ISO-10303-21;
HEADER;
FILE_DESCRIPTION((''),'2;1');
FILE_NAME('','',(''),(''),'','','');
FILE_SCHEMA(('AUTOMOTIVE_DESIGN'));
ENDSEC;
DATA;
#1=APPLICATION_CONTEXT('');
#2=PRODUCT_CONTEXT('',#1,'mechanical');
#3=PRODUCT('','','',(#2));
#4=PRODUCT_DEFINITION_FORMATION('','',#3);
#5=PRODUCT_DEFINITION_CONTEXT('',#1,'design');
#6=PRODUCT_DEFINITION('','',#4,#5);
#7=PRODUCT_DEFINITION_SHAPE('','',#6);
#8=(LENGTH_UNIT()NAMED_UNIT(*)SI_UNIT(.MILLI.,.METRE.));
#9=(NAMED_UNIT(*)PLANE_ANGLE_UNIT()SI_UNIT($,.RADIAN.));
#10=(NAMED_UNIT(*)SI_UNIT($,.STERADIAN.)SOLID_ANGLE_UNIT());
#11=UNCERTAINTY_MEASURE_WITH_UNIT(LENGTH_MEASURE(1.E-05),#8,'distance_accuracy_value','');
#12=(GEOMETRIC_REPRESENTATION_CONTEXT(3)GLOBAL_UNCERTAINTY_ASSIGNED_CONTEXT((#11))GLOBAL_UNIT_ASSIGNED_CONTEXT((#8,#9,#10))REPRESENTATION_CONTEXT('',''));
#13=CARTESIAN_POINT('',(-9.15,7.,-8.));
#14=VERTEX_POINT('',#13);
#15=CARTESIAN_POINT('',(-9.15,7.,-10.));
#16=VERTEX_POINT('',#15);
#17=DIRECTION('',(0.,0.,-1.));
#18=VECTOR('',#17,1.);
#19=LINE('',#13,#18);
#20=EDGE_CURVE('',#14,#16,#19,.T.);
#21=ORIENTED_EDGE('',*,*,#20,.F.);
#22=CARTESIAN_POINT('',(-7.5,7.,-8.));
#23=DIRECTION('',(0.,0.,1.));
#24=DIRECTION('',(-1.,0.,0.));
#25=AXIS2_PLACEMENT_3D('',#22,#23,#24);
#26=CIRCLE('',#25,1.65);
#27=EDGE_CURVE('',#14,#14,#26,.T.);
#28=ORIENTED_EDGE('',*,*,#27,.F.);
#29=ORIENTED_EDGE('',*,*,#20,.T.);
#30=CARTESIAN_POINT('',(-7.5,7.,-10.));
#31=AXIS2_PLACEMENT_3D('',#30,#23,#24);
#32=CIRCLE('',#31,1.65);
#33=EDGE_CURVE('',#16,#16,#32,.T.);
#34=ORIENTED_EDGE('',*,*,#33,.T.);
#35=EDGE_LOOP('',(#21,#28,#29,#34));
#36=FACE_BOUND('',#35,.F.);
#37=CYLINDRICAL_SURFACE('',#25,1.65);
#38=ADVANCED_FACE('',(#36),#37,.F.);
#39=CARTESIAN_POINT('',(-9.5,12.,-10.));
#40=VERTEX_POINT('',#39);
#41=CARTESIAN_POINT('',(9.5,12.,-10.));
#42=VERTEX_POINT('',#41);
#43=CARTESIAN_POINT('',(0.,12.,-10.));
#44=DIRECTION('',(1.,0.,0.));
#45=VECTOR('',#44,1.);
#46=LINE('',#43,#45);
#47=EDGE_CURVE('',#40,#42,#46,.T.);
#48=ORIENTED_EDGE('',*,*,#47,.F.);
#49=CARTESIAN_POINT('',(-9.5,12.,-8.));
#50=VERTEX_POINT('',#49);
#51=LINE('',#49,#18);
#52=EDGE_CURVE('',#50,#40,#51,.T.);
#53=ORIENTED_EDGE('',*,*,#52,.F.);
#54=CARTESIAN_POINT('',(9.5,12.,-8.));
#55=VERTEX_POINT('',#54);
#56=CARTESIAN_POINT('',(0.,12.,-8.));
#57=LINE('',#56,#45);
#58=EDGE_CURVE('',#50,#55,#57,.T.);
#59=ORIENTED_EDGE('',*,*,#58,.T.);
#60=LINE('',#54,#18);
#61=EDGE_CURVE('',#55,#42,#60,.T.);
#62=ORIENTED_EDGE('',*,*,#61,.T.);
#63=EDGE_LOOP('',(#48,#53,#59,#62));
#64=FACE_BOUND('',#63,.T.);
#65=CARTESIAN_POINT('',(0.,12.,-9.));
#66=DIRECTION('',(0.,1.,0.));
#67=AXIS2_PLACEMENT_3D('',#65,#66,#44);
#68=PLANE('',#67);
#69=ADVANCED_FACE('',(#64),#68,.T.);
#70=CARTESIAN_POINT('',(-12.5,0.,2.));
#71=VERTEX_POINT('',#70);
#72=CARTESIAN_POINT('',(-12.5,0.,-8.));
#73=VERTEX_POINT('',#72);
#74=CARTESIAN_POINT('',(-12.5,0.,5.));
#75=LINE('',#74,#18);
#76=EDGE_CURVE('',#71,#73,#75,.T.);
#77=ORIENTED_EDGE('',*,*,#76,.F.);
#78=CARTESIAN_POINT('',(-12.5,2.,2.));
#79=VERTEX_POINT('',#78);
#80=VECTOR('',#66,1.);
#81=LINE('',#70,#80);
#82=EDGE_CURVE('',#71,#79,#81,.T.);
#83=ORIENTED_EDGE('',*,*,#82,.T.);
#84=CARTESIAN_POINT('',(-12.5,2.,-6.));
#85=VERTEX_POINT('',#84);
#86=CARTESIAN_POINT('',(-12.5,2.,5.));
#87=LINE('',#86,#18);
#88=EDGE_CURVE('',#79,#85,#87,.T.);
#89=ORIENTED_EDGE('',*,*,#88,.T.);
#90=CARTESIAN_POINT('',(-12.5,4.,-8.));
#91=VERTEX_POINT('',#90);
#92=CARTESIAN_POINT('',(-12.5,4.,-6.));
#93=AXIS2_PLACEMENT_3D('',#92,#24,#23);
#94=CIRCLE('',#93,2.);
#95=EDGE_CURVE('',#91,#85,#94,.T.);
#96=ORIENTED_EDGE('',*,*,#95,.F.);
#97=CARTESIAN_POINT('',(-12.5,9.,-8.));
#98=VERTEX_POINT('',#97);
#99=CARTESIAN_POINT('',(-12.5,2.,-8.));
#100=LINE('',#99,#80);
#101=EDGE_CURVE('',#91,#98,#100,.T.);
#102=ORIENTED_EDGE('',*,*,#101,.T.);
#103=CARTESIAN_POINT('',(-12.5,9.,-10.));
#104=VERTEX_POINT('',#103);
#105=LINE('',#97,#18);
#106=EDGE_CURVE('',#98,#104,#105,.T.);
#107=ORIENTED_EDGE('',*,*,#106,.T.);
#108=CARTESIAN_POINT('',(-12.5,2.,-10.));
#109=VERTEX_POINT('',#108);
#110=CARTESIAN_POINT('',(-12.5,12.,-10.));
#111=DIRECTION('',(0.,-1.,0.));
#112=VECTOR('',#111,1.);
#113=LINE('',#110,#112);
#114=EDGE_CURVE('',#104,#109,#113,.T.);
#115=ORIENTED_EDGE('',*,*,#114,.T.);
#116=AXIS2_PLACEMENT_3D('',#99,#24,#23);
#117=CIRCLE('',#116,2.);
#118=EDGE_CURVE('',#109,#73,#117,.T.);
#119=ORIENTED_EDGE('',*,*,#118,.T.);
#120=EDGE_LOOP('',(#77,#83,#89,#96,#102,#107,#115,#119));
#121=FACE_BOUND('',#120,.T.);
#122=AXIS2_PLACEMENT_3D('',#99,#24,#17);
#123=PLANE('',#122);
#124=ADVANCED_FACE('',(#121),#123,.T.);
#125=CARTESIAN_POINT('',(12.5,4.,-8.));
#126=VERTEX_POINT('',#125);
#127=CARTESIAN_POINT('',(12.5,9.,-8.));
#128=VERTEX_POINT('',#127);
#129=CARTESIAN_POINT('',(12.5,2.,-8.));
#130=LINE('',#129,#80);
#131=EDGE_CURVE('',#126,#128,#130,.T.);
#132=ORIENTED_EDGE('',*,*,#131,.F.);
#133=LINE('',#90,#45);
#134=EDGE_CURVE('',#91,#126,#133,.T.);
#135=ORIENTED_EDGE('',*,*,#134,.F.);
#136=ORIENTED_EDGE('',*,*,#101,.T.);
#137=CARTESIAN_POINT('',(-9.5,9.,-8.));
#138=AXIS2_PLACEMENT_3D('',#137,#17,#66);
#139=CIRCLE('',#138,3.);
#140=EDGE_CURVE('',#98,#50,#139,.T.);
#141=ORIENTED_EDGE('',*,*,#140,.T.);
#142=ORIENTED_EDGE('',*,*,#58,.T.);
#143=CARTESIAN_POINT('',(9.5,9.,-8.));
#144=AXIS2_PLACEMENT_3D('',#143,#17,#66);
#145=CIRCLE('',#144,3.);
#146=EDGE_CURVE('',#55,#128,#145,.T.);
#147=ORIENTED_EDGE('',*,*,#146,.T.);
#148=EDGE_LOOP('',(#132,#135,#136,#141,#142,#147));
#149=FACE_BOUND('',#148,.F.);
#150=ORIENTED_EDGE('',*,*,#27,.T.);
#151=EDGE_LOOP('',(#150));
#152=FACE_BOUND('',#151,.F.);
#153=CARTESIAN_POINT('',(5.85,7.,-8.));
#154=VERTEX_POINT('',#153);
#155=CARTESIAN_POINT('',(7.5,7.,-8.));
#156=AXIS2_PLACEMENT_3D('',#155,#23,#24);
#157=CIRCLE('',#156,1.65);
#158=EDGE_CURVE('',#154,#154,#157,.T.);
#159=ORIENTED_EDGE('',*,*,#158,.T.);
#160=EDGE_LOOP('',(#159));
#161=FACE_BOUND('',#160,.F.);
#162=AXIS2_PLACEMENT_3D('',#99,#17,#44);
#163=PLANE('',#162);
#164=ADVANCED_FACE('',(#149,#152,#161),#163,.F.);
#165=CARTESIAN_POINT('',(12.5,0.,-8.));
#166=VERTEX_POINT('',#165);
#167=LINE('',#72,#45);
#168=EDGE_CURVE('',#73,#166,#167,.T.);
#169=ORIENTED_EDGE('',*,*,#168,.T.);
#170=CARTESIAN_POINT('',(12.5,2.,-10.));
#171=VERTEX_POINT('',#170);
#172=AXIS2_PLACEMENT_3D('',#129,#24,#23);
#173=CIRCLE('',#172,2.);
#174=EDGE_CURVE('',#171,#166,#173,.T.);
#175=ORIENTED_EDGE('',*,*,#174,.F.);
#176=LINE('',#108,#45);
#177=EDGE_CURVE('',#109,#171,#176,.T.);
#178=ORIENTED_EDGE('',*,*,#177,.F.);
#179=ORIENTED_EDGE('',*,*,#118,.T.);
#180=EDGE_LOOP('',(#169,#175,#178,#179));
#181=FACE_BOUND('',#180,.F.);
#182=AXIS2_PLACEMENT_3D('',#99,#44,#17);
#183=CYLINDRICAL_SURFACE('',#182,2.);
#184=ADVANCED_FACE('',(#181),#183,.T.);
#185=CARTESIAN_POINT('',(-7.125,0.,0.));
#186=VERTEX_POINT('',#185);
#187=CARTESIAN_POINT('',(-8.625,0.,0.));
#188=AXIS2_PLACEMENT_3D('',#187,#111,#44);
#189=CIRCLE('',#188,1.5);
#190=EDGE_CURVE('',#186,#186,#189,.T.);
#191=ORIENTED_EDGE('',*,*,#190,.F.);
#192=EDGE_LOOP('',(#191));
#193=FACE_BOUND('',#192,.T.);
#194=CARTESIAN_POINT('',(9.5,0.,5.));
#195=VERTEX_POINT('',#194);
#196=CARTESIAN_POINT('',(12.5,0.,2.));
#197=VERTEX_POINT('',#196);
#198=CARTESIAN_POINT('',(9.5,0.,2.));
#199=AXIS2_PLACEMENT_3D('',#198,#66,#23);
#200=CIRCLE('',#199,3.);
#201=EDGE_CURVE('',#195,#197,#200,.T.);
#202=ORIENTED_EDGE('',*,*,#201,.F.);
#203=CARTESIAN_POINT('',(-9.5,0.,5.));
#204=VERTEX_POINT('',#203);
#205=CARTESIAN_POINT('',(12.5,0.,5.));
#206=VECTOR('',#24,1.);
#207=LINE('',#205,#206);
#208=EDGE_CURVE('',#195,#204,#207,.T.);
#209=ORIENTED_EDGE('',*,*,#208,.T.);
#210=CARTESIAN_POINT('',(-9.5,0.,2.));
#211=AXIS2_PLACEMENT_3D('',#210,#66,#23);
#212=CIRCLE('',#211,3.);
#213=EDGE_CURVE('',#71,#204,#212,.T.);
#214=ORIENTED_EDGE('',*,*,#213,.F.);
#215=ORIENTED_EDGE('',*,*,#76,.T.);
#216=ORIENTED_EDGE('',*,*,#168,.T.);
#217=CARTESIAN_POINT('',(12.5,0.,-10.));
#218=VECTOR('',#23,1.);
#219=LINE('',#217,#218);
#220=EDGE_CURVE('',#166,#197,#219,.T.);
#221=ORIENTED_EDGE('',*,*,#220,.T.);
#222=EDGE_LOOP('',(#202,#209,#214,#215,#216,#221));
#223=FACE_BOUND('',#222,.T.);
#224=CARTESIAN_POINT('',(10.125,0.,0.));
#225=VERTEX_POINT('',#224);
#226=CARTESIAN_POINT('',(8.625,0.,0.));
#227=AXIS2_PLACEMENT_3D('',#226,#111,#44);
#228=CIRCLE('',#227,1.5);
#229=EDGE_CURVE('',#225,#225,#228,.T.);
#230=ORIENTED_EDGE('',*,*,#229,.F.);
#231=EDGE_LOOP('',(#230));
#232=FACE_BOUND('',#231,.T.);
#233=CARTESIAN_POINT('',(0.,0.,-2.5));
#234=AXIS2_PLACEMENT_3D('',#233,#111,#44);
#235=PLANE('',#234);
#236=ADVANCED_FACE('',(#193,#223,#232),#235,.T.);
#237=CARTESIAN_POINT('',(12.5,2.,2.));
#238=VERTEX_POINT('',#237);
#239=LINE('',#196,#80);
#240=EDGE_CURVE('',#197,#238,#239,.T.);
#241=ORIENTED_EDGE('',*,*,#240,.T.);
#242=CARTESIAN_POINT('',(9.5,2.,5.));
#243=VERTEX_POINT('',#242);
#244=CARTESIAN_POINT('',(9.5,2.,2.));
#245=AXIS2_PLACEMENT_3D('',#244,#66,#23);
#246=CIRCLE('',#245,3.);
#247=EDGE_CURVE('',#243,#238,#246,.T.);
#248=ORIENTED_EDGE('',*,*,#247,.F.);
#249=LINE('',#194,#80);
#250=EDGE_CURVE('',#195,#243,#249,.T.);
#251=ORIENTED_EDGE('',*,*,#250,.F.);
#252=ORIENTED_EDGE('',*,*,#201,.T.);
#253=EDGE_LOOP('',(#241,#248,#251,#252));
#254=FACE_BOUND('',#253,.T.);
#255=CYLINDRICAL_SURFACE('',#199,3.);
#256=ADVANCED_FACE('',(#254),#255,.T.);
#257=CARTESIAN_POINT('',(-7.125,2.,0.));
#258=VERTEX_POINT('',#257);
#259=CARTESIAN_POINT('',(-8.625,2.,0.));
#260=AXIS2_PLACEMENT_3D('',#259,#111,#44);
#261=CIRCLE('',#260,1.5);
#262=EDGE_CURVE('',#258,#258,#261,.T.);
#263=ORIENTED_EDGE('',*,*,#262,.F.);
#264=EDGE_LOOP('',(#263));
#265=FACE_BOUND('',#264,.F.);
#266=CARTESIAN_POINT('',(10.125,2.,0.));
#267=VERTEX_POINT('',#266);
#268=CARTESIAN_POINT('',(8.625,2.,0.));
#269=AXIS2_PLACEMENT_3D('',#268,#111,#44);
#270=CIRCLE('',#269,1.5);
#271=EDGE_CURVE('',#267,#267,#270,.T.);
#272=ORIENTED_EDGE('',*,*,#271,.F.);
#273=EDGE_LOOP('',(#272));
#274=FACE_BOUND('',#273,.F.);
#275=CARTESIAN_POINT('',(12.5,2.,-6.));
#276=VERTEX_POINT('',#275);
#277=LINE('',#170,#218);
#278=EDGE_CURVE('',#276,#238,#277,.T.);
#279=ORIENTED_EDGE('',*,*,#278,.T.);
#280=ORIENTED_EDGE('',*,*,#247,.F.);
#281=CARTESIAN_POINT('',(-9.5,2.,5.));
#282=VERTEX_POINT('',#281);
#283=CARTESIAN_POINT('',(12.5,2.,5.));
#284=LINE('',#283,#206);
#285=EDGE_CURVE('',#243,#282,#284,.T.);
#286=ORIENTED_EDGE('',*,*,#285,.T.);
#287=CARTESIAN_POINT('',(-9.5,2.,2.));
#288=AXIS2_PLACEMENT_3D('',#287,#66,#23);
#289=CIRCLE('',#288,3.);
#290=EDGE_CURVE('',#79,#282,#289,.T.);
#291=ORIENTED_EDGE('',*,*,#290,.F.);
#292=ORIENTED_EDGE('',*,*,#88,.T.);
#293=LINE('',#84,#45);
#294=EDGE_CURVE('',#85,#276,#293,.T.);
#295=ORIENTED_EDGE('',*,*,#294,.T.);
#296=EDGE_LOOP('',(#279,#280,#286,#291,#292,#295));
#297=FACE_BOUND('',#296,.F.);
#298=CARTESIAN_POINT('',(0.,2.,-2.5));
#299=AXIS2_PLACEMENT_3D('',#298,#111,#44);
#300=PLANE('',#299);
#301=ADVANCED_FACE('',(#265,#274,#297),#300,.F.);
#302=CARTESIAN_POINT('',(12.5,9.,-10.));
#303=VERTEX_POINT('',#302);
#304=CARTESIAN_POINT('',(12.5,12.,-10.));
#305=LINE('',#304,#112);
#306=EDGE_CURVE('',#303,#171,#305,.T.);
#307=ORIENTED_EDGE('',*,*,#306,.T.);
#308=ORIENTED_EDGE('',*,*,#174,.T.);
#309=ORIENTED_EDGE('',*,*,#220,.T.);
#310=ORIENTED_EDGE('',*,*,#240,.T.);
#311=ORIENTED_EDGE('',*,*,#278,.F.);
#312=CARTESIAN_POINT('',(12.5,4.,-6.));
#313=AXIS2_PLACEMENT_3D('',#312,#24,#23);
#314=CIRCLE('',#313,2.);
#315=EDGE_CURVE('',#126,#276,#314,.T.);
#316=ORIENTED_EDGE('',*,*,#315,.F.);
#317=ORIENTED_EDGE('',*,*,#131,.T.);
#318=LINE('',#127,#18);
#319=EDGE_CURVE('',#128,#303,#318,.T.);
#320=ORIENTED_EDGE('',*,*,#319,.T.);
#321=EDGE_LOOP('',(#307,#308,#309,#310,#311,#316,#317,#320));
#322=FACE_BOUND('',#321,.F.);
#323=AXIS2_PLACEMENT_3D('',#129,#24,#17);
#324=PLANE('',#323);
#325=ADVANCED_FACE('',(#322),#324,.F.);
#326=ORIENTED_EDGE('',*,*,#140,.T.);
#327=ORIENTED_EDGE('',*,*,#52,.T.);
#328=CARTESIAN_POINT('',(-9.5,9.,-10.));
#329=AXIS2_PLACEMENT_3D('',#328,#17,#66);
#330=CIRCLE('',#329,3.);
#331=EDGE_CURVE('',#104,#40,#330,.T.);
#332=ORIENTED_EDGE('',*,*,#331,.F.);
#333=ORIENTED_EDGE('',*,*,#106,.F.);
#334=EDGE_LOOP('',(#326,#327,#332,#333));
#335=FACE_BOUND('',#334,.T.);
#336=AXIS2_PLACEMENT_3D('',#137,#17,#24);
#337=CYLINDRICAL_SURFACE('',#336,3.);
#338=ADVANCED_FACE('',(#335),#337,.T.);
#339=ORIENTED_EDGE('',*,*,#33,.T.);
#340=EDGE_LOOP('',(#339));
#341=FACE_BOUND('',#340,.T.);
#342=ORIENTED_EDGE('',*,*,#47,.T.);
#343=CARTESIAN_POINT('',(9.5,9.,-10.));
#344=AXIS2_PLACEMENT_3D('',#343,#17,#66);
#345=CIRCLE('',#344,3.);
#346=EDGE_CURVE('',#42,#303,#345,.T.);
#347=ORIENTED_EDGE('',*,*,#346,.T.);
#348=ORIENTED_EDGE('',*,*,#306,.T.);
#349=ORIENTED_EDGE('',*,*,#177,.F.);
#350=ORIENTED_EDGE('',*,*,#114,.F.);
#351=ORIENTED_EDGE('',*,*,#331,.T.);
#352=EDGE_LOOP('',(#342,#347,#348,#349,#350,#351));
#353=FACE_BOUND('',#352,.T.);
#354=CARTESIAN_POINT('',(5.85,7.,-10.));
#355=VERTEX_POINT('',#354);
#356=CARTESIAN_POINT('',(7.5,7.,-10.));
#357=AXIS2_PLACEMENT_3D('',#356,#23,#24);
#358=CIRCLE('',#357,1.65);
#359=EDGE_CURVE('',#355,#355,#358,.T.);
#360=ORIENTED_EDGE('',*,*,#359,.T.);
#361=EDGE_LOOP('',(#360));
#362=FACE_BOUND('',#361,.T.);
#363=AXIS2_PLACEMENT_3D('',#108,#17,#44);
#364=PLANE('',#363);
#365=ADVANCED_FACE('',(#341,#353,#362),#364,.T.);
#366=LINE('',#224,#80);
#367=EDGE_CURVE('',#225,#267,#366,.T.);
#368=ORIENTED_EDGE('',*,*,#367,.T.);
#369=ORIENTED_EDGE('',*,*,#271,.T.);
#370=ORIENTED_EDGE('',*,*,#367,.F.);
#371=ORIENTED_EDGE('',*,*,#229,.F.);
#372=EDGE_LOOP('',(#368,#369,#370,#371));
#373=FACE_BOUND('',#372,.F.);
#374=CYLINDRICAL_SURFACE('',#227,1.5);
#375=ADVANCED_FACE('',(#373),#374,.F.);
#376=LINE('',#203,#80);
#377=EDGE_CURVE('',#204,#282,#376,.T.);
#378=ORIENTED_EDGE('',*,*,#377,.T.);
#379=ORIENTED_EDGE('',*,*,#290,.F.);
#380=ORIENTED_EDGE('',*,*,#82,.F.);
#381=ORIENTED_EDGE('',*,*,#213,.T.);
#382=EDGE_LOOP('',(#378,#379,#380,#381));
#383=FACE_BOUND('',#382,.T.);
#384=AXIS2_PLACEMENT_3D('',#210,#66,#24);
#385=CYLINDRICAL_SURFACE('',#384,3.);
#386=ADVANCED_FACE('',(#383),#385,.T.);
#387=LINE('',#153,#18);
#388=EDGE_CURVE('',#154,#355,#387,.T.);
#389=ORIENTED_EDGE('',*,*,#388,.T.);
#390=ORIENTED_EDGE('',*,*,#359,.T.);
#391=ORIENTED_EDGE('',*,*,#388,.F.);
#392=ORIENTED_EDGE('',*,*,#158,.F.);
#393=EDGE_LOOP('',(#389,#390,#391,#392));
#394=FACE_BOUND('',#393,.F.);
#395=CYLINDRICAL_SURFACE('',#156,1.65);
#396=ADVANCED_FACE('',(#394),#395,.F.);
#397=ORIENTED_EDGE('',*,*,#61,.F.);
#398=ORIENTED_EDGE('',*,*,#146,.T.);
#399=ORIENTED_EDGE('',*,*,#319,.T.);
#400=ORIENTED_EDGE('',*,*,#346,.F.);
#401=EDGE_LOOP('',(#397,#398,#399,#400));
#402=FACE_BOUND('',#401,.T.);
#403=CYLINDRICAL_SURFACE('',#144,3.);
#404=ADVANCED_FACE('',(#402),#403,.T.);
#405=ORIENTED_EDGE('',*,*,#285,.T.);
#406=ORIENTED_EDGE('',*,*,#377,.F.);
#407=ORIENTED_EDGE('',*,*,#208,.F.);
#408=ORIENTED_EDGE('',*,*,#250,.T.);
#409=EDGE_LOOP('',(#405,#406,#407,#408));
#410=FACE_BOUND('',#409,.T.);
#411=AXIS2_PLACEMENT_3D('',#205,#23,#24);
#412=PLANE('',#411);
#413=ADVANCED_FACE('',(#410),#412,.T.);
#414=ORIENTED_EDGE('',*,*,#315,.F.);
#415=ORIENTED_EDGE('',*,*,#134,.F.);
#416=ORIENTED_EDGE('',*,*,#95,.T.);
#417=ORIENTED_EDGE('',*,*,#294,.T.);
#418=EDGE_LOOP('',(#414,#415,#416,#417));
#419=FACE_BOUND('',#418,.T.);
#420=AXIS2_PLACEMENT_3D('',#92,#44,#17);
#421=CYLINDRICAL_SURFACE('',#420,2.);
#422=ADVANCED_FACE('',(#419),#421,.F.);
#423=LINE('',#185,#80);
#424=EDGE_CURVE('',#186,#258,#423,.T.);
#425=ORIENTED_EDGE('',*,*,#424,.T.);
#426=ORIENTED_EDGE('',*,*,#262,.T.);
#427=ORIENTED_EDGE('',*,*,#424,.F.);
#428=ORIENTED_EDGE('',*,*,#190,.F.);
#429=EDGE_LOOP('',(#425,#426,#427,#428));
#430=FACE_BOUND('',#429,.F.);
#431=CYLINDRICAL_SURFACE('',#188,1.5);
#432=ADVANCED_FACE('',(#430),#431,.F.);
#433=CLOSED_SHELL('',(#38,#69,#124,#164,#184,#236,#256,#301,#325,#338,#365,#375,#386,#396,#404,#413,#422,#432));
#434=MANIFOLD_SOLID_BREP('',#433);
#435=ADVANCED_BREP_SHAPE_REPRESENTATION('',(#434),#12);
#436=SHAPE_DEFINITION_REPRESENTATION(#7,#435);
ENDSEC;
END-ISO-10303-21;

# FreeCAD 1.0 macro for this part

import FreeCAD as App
import Part
import Sketcher

V = App.Vector
Q = App.Units.Quantity


def edges_at(feature, points):
    """Names of the edges that pass closest to the given points."""
    edges = feature.Shape.Edges
    near = lambda p: min(range(len(edges)), key=lambda i: edges[i].distToShape(Part.Vertex(*p))[0])
    return sorted({f"Edge{near(p) + 1}" for p in points})


def add_polygon(sketch, points):
    """Adds a closed chain of lines whose ends are joined by coincident constraints."""
    first, n = sketch.GeometryCount, len(points)
    for a, b in zip(points, points[1:] + points[:1]):
        sketch.addGeometry(Part.LineSegment(App.Vector(*a, 0), App.Vector(*b, 0)), False)
    for i in range(n):
        sketch.addConstraint(Sketcher.Constraint("Coincident", first + i, 2, first + (i + 1) % n, 1))

doc = App.newDocument("Part")
body = doc.addObject("PartDesign::Body", "Body")

sketch1 = body.newObject("Sketcher::SketchObject", "Sketch")
sketch1.AttachmentSupport = (doc.getObject("XZ_Plane"), [""])
sketch1.MapMode = "FlatFace"
add_polygon(sketch1, [(-12.5, 5), (-12.5, -10), (12.5, -10), (12.5, 5)])
sketch1.addGeometry(Part.Circle(V(-8.6, 0, 0), V(0, 0, 1), 1.5), False)
sketch1.addGeometry(Part.Circle(V(8.6, 0, 0), V(0, 0, 1), 1.5), False)
sketch1.addConstraint(Sketcher.Constraint("Vertical", 0))
sketch1.addConstraint(Sketcher.Constraint("Horizontal", 1))
sketch1.addConstraint(Sketcher.Constraint("Vertical", 2))
sketch1.addConstraint(Sketcher.Constraint("Horizontal", 3))
sketch1.addConstraint(Sketcher.Constraint("Equal", 4, 5))
sketch1.addConstraint(Sketcher.Constraint("Symmetric", 4, 3, 5, 3, -1, 1))
sketch1.addConstraint(Sketcher.Constraint("PointOnObject", 4, 3, -1))
sketch1.addConstraint(Sketcher.Constraint("Diameter", 4, Q("3 mm")))
sketch1.addConstraint(Sketcher.Constraint("DistanceX", 1, 1, 1, 2, Q("25 mm")))
sketch1.addConstraint(Sketcher.Constraint("DistanceY", 0, 2, 0, 1, Q("15 mm")))
sketch1.addConstraint(Sketcher.Constraint("DistanceY", 0, 2, -1, 1, Q("10 mm")))
sketch1.addConstraint(Sketcher.Constraint("DistanceX", 0, 2, -1, 1, Q("12.5 mm")))
sketch1.addConstraint(Sketcher.Constraint("DistanceX", 4, 3, 5, 3, Q("17.25 mm")))
pad1 = body.newObject("PartDesign::Pad", "Pad")
pad1.Profile = sketch1
pad1.Length = 2
pad1.Reversed = True

sketch2 = body.newObject("Sketcher::SketchObject", "Sketch001")
sketch2.AttachmentSupport = (doc.getObject("XZ_Plane"), [""])
sketch2.MapMode = "FlatFace"
sketch2.AttachmentOffset = App.Placement(V(0, 0, -2), App.Rotation())
add_polygon(sketch2, [(-12.5, -10), (-12.5, -8), (12.5, -8), (12.5, -10)])
sketch2.addConstraint(Sketcher.Constraint("Vertical", 0))
sketch2.addConstraint(Sketcher.Constraint("Horizontal", 1))
sketch2.addConstraint(Sketcher.Constraint("Vertical", 2))
sketch2.addConstraint(Sketcher.Constraint("Horizontal", 3))
sketch2.addConstraint(Sketcher.Constraint("DistanceX", 1, 1, 1, 2, Q("25 mm")))
sketch2.addConstraint(Sketcher.Constraint("DistanceY", 0, 1, 0, 2, Q("2 mm")))
sketch2.addConstraint(Sketcher.Constraint("DistanceY", 0, 2, -1, 1, Q("8 mm")))
sketch2.addConstraint(Sketcher.Constraint("DistanceX", 0, 2, -1, 1, Q("12.5 mm")))
pad2 = body.newObject("PartDesign::Pad", "Pad001")
pad2.Profile = sketch2
pad2.Length = 10
pad2.Reversed = True

sketch3 = body.newObject("Sketcher::SketchObject", "Sketch002")
sketch3.AttachmentSupport = (doc.getObject("XY_Plane"), [""])
sketch3.MapMode = "FlatFace"
sketch3.AttachmentOffset = App.Placement(V(0, 0, -8), App.Rotation())
sketch3.addGeometry(Part.Circle(V(7.5, 7, 0), V(0, 0, 1), 1.6), False)
sketch3.addGeometry(Part.Circle(V(-7.5, 7, 0), V(0, 0, 1), 1.6), False)
sketch3.addConstraint(Sketcher.Constraint("Equal", 0, 1))
sketch3.addConstraint(Sketcher.Constraint("Symmetric", 0, 3, 1, 3, -2))
sketch3.addConstraint(Sketcher.Constraint("Diameter", 0, Q("3.3 mm")))
sketch3.addConstraint(Sketcher.Constraint("DistanceY", -1, 1, 0, 3, Q("7 mm")))
sketch3.addConstraint(Sketcher.Constraint("DistanceX", 1, 3, 0, 3, Q("15 mm")))
pocket1 = body.newObject("PartDesign::Pocket", "Pocket")
pocket1.Profile = sketch3
pocket1.Type = "ThroughAll"
doc.recompute()

fillet = body.newObject("PartDesign::Fillet", "Fillet")
fillet.Base = (pocket1, edges_at(pocket1, [(0, 2, -8), (0, 0, -10)]))
fillet.Radius = 2
doc.recompute()

fillet2 = body.newObject("PartDesign::Fillet", "Fillet001")
fillet2.Base = (fillet, edges_at(fillet, [
    (-12.5, 1, 5),
    (12.5, 1, 5),
    (12.5, 12, -9),
    (-12.5, 12, -9),
]))
fillet2.Radius = 3

doc.recompute()
